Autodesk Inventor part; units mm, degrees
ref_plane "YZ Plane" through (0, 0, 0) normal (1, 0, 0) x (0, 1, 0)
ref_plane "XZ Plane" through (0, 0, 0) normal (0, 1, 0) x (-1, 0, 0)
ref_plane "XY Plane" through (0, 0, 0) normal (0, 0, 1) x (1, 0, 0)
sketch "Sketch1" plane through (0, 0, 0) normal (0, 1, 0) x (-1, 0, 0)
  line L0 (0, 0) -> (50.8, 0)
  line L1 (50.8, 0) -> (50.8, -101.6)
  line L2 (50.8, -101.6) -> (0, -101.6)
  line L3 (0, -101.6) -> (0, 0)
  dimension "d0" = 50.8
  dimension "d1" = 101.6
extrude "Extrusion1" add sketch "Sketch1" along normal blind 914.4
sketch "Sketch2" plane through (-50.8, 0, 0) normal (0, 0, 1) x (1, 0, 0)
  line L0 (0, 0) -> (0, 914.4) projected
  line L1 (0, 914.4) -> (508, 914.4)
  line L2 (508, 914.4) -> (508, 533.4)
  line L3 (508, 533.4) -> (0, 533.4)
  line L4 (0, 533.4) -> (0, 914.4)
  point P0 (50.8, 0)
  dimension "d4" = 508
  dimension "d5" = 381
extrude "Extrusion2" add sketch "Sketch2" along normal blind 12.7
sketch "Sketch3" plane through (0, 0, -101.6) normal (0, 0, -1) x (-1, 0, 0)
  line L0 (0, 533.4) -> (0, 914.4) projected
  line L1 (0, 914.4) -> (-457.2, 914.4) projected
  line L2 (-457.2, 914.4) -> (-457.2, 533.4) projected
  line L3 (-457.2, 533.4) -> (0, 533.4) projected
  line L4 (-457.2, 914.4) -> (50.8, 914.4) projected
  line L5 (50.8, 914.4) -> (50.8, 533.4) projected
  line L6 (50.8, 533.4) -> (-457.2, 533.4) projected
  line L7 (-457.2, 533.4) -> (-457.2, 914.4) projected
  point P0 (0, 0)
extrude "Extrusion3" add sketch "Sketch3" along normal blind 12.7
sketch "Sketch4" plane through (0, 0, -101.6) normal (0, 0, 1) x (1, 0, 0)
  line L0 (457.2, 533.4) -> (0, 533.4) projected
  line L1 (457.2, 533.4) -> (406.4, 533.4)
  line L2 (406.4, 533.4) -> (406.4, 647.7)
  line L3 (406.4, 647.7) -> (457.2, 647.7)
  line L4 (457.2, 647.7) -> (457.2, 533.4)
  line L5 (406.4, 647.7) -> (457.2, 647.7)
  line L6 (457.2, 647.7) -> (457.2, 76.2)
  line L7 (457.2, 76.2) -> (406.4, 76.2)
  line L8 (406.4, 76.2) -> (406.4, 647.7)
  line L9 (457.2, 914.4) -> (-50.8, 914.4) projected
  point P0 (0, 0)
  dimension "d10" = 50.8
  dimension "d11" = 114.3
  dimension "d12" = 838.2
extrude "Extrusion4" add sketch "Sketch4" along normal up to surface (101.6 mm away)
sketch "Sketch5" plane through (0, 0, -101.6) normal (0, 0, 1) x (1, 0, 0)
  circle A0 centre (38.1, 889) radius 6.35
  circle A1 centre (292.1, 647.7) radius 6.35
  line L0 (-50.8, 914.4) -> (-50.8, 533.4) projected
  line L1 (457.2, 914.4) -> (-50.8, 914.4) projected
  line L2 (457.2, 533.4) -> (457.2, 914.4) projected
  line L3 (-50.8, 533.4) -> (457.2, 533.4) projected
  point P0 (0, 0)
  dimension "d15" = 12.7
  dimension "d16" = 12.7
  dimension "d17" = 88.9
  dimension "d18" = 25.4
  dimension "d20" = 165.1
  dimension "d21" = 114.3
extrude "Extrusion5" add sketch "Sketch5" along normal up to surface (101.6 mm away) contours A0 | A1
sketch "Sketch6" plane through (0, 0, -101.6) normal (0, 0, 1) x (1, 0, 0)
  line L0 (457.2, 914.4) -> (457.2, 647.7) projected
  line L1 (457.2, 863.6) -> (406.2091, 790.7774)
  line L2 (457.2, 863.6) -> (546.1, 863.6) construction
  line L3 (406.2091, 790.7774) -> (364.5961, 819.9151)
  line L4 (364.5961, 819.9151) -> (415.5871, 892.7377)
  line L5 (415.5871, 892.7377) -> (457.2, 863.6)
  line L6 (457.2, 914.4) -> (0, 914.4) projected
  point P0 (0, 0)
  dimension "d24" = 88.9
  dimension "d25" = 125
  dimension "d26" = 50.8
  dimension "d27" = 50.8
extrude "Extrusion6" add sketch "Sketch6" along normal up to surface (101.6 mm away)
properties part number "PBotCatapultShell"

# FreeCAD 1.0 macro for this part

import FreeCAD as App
import Part
import Sketcher
Q = App.Units.Quantity


def add_polygon(sketch, points):
    """Adds a closed chain of lines whose ends are joined by coincident constraints."""
    first, n = sketch.GeometryCount, len(points)
    for a, b in zip(points, points[1:] + points[:1]):
        sketch.addGeometry(Part.LineSegment(App.Vector(*a, 0), App.Vector(*b, 0)), False)
    for i in range(n):
        sketch.addConstraint(Sketcher.Constraint("Coincident", first + i, 2, first + (i + 1) % n, 1))

doc = App.newDocument("Part")
params = doc.addObject("Spreadsheet::Sheet", "Params")
for row, (alias, value) in enumerate([
    ("sketch1_width", "2 in"),
    ("sketch1_height", "4 in"),
    ("pad1_length", "36 in"),
    ("sketch2_width", "20 in"),
    ("sketch2_height", "15 in"),
    ("pad2_length", "0.5 in"),
    ("sketch3_width", "20 in"),
    ("sketch3_height", "15 in"),
    ("pad3_length", "0.5 in"),
    ("sketch4_width", "2 in"),
    ("sketch4_height", "22.5 in"),
    ("pad4_length", "4 in"),
    ("sketch5_diameter", "0.5 in"),
    ("pad5_length", "4 in"),
    ("sketch6_length", "2 in"),
    ("sketch6_length2", "3.5 in"),
    ("pad6_length", "4 in"),
], start=1):
    params.set(f"A{row}", alias)
    params.set(f"B{row}", "=" + value)
    params.setAlias(f"B{row}", alias)

body = doc.addObject("PartDesign::Body", "Body")

sketch1 = doc.addObject("Sketcher::SketchObject", "Sketch")
body.addObject(sketch1)
sketch1.AttachmentSupport = (doc.XZ_Plane, [""])
sketch1.MapMode = "FlatFace"
add_polygon(sketch1, [(-51, 0), (0, 0), (0, -102), (-51, -102)])
sketch1.addConstraint([
    Sketcher.Constraint("Horizontal", 0),
    Sketcher.Constraint("Vertical", 1),
    Sketcher.Constraint("Horizontal", 2),
    Sketcher.Constraint("Vertical", 3),
    Sketcher.Constraint("Coincident", 0, 2, -1, 1),
    Sketcher.Constraint("DistanceX", 0, 1, 0, 2, Q("2 in")),
    Sketcher.Constraint("DistanceY", 1, 2, 1, 1, Q("4 in")),
])
sketch1.setExpression("Constraints[9]", "Params.sketch1_width")
sketch1.setExpression("Constraints[10]", "Params.sketch1_height")
pad1 = doc.addObject("PartDesign::Pad", "Pad")
body.addObject(pad1)
pad1.Profile = sketch1
pad1.setExpression("Length", "Params.pad1_length")
pad1.Reversed = True

sketch2 = doc.addObject("Sketcher::SketchObject", "Sketch001")
body.addObject(sketch2)
sketch2.AttachmentSupport = (doc.XY_Plane, [""])
sketch2.MapMode = "FlatFace"
add_polygon(sketch2, [(-51, 914), (-51, 533), (457, 533), (457, 914)])
sketch2.addConstraint([
    Sketcher.Constraint("Vertical", 0),
    Sketcher.Constraint("Horizontal", 1),
    Sketcher.Constraint("Vertical", 2),
    Sketcher.Constraint("Horizontal", 3),
    Sketcher.Constraint("DistanceX", 1, 1, 1, 2, Q("20 in")),
    Sketcher.Constraint("DistanceY", 0, 2, 0, 1, Q("15 in")),
    Sketcher.Constraint("DistanceX", 0, 2, -1, 1, Q("2 in")),
    Sketcher.Constraint("DistanceY", -1, 1, 0, 2, Q("21 in")),
])
sketch2.setExpression("Constraints[8]", "Params.sketch2_width")
sketch2.setExpression("Constraints[9]", "Params.sketch2_height")
pad2 = doc.addObject("PartDesign::Pad", "Pad001")
body.addObject(pad2)
pad2.Profile = sketch2
pad2.setExpression("Length", "Params.pad2_length")

sketch3 = doc.addObject("Sketcher::SketchObject", "Sketch002")
body.addObject(sketch3)
sketch3.AttachmentSupport = (doc.XY_Plane, [""])
sketch3.MapMode = "FlatFace"
sketch3.AttachmentOffset = App.Placement(App.Vector(0, 0, -4 * 25.4), App.Rotation())
add_polygon(sketch3, [(457, 533), (-51, 533), (-51, 914), (457, 914)])
sketch3.addConstraint([
    Sketcher.Constraint("Horizontal", 0),
    Sketcher.Constraint("Vertical", 1),
    Sketcher.Constraint("Horizontal", 2),
    Sketcher.Constraint("Vertical", 3),
    Sketcher.Constraint("DistanceX", 0, 2, 0, 1, Q("20 in")),
    Sketcher.Constraint("DistanceY", 1, 1, 1, 2, Q("15 in")),
    Sketcher.Constraint("DistanceX", 0, 2, -1, 1, Q("2 in")),
    Sketcher.Constraint("DistanceY", -1, 1, 0, 2, Q("21 in")),
])
sketch3.setExpression("Constraints[8]", "Params.sketch3_width")
sketch3.setExpression("Constraints[9]", "Params.sketch3_height")
pad3 = doc.addObject("PartDesign::Pad", "Pad002")
body.addObject(pad3)
pad3.Profile = sketch3
pad3.setExpression("Length", "Params.pad3_length")
pad3.Reversed = True

sketch4 = doc.addObject("Sketcher::SketchObject", "Sketch003")
body.addObject(sketch4)
sketch4.AttachmentSupport = (doc.XY_Plane, [""])
sketch4.MapMode = "FlatFace"
sketch4.AttachmentOffset = App.Placement(App.Vector(0, 0, -4 * 25.4), App.Rotation())
add_polygon(sketch4, [(457, 76), (457, 648), (406, 648), (406, 76)])
sketch4.addConstraint([
    Sketcher.Constraint("Vertical", 0),
    Sketcher.Constraint("Horizontal", 1),
    Sketcher.Constraint("Vertical", 2),
    Sketcher.Constraint("Horizontal", 3),
    Sketcher.Constraint("DistanceX", 1, 2, 1, 1, Q("2 in")),
    Sketcher.Constraint("DistanceY", 0, 1, 0, 2, Q("22.5 in")),
    Sketcher.Constraint("DistanceX", -1, 1, 0, 2, Q("18 in")),
    Sketcher.Constraint("DistanceY", -1, 1, 2, 2, Q("3 in")),
])
sketch4.setExpression("Constraints[8]", "Params.sketch4_width")
sketch4.setExpression("Constraints[9]", "Params.sketch4_height")
pad4 = doc.addObject("PartDesign::Pad", "Pad003")
body.addObject(pad4)
pad4.Profile = sketch4
pad4.setExpression("Length", "Params.pad4_length")

sketch5 = doc.addObject("Sketcher::SketchObject", "Sketch004")
body.addObject(sketch5)
sketch5.AttachmentSupport = (doc.XY_Plane, [""])
sketch5.MapMode = "FlatFace"
sketch5.AttachmentOffset = App.Placement(App.Vector(0, 0, -4 * 25.4), App.Rotation())
sketch5.addGeometry([
    Part.Circle(App.Vector(38, 889, 0), App.Vector(0, 0, 1), 6),
    Part.Circle(App.Vector(292, 648, 0), App.Vector(0, 0, 1), 6),
], False)
sketch5.addConstraint([
    Sketcher.Constraint("Equal", 0, 1),
    Sketcher.Constraint("Diameter", 0, Q("0.5 in")),
    Sketcher.Constraint("DistanceY", -1, 1, 0, 3, Q("35 in")),
    Sketcher.Constraint("DistanceX", 0, 3, 1, 3, Q("10 in")),
    Sketcher.Constraint("DistanceX", -1, 1, 0, 3, Q("1.5 in")),
    Sketcher.Constraint("DistanceY", -1, 1, 1, 3, Q("25.5 in")),
])
sketch5.setExpression("Constraints[1]", "Params.sketch5_diameter")
pad5 = doc.addObject("PartDesign::Pad", "Pad004")
body.addObject(pad5)
pad5.Profile = sketch5
pad5.setExpression("Length", "Params.pad5_length")

sketch6 = doc.addObject("Sketcher::SketchObject", "Sketch005")
body.addObject(sketch6)
sketch6.AttachmentSupport = (doc.XY_Plane, [""])
sketch6.MapMode = "FlatFace"
sketch6.AttachmentOffset = App.Placement(App.Vector(0, 0, -4 * 25.4), App.Rotation())
add_polygon(sketch6, [(406, 791), (457, 864), (416, 893), (365, 820)])
sketch6.addConstraint([
    Sketcher.Constraint("Perpendicular", 0, 1),
    Sketcher.Constraint("Perpendicular", 1, 2),
    Sketcher.Constraint("Perpendicular", 2, 3),
    Sketcher.Constraint("Distance", 1, Q("2 in")),
    Sketcher.Constraint("Angle", 2, Q("-125 deg")),
    Sketcher.Constraint("Distance", 0, Q("3.5 in")),
    Sketcher.Constraint("DistanceX", -1, 1, 0, 2, Q("18 in")),
    Sketcher.Constraint("DistanceY", -1, 1, 0, 2, Q("34 in")),
])
sketch6.setExpression("Constraints[7]", "Params.sketch6_length")
sketch6.setExpression("Constraints[9]", "Params.sketch6_length2")
pad6 = doc.addObject("PartDesign::Pad", "Pad005")
body.addObject(pad6)
pad6.Profile = sketch6
pad6.setExpression("Length", "Params.pad6_length")

doc.recompute()
